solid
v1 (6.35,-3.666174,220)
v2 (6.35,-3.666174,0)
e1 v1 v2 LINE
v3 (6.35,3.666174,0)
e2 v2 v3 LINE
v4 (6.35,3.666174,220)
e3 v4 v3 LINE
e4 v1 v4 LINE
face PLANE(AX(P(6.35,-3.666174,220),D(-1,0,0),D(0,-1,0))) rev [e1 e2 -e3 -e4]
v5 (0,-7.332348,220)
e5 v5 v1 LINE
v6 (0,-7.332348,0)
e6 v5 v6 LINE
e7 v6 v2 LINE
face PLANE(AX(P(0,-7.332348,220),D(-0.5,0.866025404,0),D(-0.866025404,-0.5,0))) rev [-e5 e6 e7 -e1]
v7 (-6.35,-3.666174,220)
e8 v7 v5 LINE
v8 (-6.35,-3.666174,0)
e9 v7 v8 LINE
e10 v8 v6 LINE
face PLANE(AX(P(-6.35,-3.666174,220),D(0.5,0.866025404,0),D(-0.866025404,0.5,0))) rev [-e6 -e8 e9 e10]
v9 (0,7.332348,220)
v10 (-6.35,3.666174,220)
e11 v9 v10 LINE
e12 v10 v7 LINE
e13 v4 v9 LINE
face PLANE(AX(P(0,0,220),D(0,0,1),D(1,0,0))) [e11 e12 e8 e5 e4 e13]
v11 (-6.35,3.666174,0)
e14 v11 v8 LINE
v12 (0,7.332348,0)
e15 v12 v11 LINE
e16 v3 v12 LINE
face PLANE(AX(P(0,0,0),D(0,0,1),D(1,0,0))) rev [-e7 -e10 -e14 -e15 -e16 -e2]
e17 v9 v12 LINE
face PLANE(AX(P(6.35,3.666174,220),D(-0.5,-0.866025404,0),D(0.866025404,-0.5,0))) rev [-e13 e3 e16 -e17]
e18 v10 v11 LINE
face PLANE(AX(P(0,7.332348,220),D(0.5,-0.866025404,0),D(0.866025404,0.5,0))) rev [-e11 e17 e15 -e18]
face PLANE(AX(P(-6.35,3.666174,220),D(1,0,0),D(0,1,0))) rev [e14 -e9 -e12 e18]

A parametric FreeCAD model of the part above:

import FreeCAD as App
import Part
import Sketcher
Q = App.Units.Quantity


def add_polygon(sketch, points):
    """Adds a closed chain of lines whose ends are joined by coincident constraints."""
    first, n = sketch.GeometryCount, len(points)
    for a, b in zip(points, points[1:] + points[:1]):
        sketch.addGeometry(Part.LineSegment(App.Vector(*a, 0), App.Vector(*b, 0)), False)
    for i in range(n):
        sketch.addConstraint(Sketcher.Constraint("Coincident", first + i, 2, first + (i + 1) % n, 1))

doc = App.newDocument("Part")
params = doc.addObject("Spreadsheet::Sheet", "Params")
for row, (alias, value) in enumerate([
    ("pad1_length", "220 mm"),
], start=1):
    params.set(f"A{row}", alias)
    params.set(f"B{row}", "=" + value)
    params.setAlias(f"B{row}", alias)

body = doc.addObject("PartDesign::Body", "Body")

# Sketch on XY plane
sketch1 = body.newObject("Sketcher::SketchObject", "Sketch")
sketch1.AttachmentSupport = (doc.getObject("XY_Plane"), [""])
sketch1.MapMode = "FlatFace"
add_polygon(sketch1, [(0, 7), (-6, 4), (-6, -4), (0, -7), (6, -4), (6, 4)])  # lines 0-5
sketch1.addConstraint([
    Sketcher.Constraint("Vertical", 1),
    Sketcher.Constraint("Vertical", 4),
    Sketcher.Constraint("Symmetric", 0, 2, 3, 2, -1, 1),
    Sketcher.Constraint("Symmetric", 2, 2, 5, 2, -1, 1),
    Sketcher.Constraint("PointOnObject", 2, 2, -2),
    Sketcher.Constraint("Parallel", 2, 5),
    Sketcher.Constraint("Horizontal", 1, 2, 3, 2),
    Sketcher.Constraint("Angle", 0, Q("-150 deg")),
    Sketcher.Constraint("DistanceX", 1, 2, 3, 2, 12.7),
    Sketcher.Constraint("DistanceY", 1, 2, 1, 1, 7.332348),
])
pad1 = body.newObject("PartDesign::Pad", "Pad")
pad1.Profile = sketch1
pad1.setExpression("Length", "Params.pad1_length")

doc.recompute()
